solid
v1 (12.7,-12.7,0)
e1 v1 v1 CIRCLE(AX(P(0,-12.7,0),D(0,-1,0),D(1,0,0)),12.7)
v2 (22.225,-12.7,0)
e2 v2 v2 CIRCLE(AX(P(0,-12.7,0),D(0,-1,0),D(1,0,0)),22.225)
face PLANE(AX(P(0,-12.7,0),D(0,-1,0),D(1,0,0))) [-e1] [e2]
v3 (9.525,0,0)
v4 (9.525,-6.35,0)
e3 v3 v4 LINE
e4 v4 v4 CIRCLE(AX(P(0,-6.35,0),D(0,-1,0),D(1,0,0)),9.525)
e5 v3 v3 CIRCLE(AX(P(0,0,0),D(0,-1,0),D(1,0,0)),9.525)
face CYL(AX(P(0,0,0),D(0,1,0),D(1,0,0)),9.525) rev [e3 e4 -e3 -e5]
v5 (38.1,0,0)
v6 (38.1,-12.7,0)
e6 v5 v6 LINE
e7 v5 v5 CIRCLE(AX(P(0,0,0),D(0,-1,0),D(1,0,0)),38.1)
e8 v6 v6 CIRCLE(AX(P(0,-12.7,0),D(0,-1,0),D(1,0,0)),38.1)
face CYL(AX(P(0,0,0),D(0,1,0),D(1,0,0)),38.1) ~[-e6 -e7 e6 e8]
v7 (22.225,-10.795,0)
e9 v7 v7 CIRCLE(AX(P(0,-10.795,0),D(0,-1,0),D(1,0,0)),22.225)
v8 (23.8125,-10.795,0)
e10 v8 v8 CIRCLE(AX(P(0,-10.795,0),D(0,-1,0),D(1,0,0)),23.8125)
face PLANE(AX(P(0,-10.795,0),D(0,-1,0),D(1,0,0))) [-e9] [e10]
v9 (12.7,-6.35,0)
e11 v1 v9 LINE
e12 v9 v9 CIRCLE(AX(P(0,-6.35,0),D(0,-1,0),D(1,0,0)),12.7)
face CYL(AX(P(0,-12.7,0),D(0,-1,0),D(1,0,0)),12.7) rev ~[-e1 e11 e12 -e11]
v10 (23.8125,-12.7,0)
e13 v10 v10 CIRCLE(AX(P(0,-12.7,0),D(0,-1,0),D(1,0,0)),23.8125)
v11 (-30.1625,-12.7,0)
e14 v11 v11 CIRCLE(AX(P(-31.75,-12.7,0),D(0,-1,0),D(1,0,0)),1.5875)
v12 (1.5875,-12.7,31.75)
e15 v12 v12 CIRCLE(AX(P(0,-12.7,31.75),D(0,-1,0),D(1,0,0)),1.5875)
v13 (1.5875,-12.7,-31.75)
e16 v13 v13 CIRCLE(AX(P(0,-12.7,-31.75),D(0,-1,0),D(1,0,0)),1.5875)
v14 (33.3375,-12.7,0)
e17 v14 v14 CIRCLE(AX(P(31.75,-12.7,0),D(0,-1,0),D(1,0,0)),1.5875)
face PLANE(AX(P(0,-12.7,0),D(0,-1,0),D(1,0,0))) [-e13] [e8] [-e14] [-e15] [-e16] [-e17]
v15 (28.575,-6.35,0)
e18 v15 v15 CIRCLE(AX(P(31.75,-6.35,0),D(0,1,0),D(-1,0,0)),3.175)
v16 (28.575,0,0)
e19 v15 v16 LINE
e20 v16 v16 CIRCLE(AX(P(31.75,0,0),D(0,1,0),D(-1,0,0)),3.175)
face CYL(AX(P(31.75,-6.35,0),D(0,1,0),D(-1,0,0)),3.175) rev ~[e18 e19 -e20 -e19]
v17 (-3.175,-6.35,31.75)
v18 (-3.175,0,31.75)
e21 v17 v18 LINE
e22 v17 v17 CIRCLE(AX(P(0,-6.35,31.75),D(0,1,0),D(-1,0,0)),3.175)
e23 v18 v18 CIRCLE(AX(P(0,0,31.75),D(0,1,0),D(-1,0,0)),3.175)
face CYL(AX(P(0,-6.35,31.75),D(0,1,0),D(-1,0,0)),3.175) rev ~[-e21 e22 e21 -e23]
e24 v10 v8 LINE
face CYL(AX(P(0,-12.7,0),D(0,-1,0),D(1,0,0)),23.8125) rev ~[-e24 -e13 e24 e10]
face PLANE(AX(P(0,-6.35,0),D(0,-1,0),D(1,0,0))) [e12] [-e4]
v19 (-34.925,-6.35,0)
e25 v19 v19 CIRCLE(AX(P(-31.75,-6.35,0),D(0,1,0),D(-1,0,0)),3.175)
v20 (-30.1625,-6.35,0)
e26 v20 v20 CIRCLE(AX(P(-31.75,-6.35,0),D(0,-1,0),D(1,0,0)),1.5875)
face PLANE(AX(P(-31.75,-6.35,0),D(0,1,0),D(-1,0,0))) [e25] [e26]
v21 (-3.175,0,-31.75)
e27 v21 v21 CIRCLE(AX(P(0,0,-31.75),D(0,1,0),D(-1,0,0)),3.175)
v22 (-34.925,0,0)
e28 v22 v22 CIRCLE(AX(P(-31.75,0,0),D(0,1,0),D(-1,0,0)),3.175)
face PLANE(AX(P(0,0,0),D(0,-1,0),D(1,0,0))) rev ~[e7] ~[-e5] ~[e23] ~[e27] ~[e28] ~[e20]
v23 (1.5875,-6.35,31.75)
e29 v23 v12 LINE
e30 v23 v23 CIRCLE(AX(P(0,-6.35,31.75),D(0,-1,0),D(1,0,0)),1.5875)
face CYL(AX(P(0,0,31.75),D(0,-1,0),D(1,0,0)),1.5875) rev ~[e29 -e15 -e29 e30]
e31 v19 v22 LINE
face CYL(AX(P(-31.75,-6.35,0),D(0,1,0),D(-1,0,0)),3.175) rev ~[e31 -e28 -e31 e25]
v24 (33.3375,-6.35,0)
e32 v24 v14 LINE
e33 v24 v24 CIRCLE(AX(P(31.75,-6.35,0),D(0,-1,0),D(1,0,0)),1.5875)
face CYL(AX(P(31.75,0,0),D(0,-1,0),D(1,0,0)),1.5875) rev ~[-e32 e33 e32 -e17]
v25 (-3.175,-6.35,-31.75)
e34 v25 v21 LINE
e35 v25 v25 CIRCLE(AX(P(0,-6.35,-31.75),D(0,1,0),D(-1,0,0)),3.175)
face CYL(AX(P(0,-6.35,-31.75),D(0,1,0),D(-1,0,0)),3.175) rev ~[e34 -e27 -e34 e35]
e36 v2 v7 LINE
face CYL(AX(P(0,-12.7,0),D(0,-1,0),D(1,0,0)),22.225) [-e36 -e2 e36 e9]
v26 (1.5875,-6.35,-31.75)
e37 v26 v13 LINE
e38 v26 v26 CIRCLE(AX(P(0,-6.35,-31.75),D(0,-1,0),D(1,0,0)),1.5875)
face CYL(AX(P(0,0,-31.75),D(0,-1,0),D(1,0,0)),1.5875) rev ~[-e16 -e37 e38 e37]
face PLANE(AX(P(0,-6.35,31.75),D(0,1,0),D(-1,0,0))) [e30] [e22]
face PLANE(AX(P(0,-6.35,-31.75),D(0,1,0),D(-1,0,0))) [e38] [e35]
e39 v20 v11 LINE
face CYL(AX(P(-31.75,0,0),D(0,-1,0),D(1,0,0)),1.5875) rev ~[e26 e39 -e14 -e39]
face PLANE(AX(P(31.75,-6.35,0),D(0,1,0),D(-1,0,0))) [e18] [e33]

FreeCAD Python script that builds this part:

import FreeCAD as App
import Part
import Sketcher
Q = App.Units.Quantity

doc = App.newDocument("Part")
params = doc.addObject("Spreadsheet::Sheet", "Params")
for row, (alias, value) in enumerate([
    ("sketch1_diameter", "3 in"),
    ("sketch1_diameter2", "0.75 in"),
    ("pad1_length", "0.5 in"),
    ("sketch2_diameter", "1 in"),
    ("sketch2_diameter2", "0.75 in"),
    ("pocket1_length", "0.25 in"),
    ("sketch3_diameter", "0.125 in"),
    ("hole_diameter", "0.125 in"),
    ("hole_cbore_diameter", "0.25 in"),
    ("hole_cbore_depth", "0.25 in"),
    ("sketch4_diameter", "1.75 in"),
    ("sketch4_diameter2", "1.875 in"),
    ("pocket2_length", "0.075 in"),
], start=1):
    params.set(f"A{row}", alias)
    params.set(f"B{row}", "=" + value)
    params.setAlias(f"B{row}", alias)

body = doc.addObject("PartDesign::Body", "Body")

# Sketch on XZ plane
sketch1 = body.newObject("Sketcher::SketchObject", "Sketch")
sketch1.AttachmentSupport = (doc.getObject("XZ_Plane"), [""])
sketch1.MapMode = "FlatFace"
sketch1.addGeometry([
    Part.Circle(App.Vector(0, 0, 0), App.Vector(0, 0, 1), 38),
    Part.Circle(App.Vector(0, 0, 0), App.Vector(0, 0, 1), 10),
], False)
sketch1.addConstraint([
    Sketcher.Constraint("Coincident", 0, 3, -1, 1),
    Sketcher.Constraint("Coincident", 1, 3, -1, 1),
    Sketcher.Constraint("Diameter", 0, Q("3 in")),
    Sketcher.Constraint("Diameter", 1, Q("0.75 in")),
])
sketch1.setExpression("Constraints[2]", "Params.sketch1_diameter")
sketch1.setExpression("Constraints[3]", "Params.sketch1_diameter2")
pad1 = body.newObject("PartDesign::Pad", "Pad")
pad1.Profile = sketch1
pad1.setExpression("Length", "Params.pad1_length")

# Sketch on XZ plane
sketch2 = body.newObject("Sketcher::SketchObject", "Sketch001")
sketch2.AttachmentSupport = (doc.getObject("XZ_Plane"), [""])
sketch2.MapMode = "FlatFace"
sketch2.AttachmentOffset = App.Placement(App.Vector(0, 0, 0.5 * 25.4), App.Rotation())
sketch2.addGeometry([
    Part.Circle(App.Vector(0, 0, 0), App.Vector(0, 0, 1), 13),
    Part.Circle(App.Vector(0, 0, 0), App.Vector(0, 0, 1), 10),
], False)
sketch2.addConstraint([
    Sketcher.Constraint("Coincident", 0, 3, -1, 1),
    Sketcher.Constraint("Coincident", 1, 3, -1, 1),
    Sketcher.Constraint("Diameter", 0, Q("1 in")),
    Sketcher.Constraint("Diameter", 1, Q("0.75 in")),
])
sketch2.setExpression("Constraints[2]", "Params.sketch2_diameter")
sketch2.setExpression("Constraints[3]", "Params.sketch2_diameter2")
pocket1 = body.newObject("PartDesign::Pocket", "Pocket")
pocket1.Profile = sketch2
pocket1.setExpression("Length", "Params.pocket1_length")

# Sketch on XZ plane
sketch3 = body.newObject("Sketcher::SketchObject", "Sketch002")
sketch3.AttachmentSupport = (doc.getObject("XZ_Plane"), [""])
sketch3.MapMode = "FlatFace"
sketch3.addGeometry([
    Part.Circle(App.Vector(0, 31.8, 0), App.Vector(0, 0, 1), 1.6),
    Part.Circle(App.Vector(31.8, 0, 0), App.Vector(0, 0, 1), 1.6),
    Part.Circle(App.Vector(0, -31.8, 0), App.Vector(0, 0, 1), 1.6),
    Part.Circle(App.Vector(-31.8, 0, 0), App.Vector(0, 0, 1), 1.6),
], False)
sketch3.addConstraint([
    Sketcher.Constraint("Equal", 0, 1),
    Sketcher.Constraint("Equal", 1, 2),
    Sketcher.Constraint("Equal", 2, 3),
    Sketcher.Constraint("Symmetric", 0, 3, 2, 3, -1, 1),
    Sketcher.Constraint("Symmetric", 1, 3, 3, 3, -1, 1),
    Sketcher.Constraint("PointOnObject", 0, 3, -2),
    Sketcher.Constraint("PointOnObject", 1, 3, -1),
    Sketcher.Constraint("Diameter", 0, Q("0.125 in")),
    Sketcher.Constraint("DistanceY", 2, 3, 0, 3, Q("2.5 in")),
    Sketcher.Constraint("DistanceX", 3, 3, 1, 3, Q("2.5 in")),
])
sketch3.setExpression("Constraints[7]", "Params.sketch3_diameter")
doc.recompute()
hole = body.newObject("PartDesign::Hole", "Hole")
hole.Profile = sketch3
hole.ThreadType = "None"
hole.setExpression("Diameter", "Params.hole_diameter")
hole.DepthType = "ThroughAll"
hole.HoleCutType = "Counterbore"
hole.setExpression("HoleCutDiameter", "Params.hole_cbore_diameter")
hole.setExpression("HoleCutDepth", "Params.hole_cbore_depth")
hole.Reversed = True

# Sketch on XZ plane
sketch4 = body.newObject("Sketcher::SketchObject", "Sketch003")
sketch4.AttachmentSupport = (doc.getObject("XZ_Plane"), [""])
sketch4.MapMode = "FlatFace"
sketch4.AttachmentOffset = App.Placement(App.Vector(0, 0, 0.5 * 25.4), App.Rotation())
sketch4.addGeometry([
    Part.Circle(App.Vector(0, 0, 0), App.Vector(0, 0, 1), 24),
    Part.Circle(App.Vector(0, 0, 0), App.Vector(0, 0, 1), 22),
], False)
sketch4.addConstraint([
    Sketcher.Constraint("Coincident", 0, 3, -1, 1),
    Sketcher.Constraint("Coincident", 1, 3, -1, 1),
    Sketcher.Constraint("Diameter", 1, Q("1.75 in")),
    Sketcher.Constraint("Diameter", 0, Q("1.875 in")),
])
sketch4.setExpression("Constraints[2]", "Params.sketch4_diameter")
sketch4.setExpression("Constraints[3]", "Params.sketch4_diameter2")
pocket2 = body.newObject("PartDesign::Pocket", "Pocket001")
pocket2.Profile = sketch4
pocket2.setExpression("Length", "Params.pocket2_length")

doc.recompute()
